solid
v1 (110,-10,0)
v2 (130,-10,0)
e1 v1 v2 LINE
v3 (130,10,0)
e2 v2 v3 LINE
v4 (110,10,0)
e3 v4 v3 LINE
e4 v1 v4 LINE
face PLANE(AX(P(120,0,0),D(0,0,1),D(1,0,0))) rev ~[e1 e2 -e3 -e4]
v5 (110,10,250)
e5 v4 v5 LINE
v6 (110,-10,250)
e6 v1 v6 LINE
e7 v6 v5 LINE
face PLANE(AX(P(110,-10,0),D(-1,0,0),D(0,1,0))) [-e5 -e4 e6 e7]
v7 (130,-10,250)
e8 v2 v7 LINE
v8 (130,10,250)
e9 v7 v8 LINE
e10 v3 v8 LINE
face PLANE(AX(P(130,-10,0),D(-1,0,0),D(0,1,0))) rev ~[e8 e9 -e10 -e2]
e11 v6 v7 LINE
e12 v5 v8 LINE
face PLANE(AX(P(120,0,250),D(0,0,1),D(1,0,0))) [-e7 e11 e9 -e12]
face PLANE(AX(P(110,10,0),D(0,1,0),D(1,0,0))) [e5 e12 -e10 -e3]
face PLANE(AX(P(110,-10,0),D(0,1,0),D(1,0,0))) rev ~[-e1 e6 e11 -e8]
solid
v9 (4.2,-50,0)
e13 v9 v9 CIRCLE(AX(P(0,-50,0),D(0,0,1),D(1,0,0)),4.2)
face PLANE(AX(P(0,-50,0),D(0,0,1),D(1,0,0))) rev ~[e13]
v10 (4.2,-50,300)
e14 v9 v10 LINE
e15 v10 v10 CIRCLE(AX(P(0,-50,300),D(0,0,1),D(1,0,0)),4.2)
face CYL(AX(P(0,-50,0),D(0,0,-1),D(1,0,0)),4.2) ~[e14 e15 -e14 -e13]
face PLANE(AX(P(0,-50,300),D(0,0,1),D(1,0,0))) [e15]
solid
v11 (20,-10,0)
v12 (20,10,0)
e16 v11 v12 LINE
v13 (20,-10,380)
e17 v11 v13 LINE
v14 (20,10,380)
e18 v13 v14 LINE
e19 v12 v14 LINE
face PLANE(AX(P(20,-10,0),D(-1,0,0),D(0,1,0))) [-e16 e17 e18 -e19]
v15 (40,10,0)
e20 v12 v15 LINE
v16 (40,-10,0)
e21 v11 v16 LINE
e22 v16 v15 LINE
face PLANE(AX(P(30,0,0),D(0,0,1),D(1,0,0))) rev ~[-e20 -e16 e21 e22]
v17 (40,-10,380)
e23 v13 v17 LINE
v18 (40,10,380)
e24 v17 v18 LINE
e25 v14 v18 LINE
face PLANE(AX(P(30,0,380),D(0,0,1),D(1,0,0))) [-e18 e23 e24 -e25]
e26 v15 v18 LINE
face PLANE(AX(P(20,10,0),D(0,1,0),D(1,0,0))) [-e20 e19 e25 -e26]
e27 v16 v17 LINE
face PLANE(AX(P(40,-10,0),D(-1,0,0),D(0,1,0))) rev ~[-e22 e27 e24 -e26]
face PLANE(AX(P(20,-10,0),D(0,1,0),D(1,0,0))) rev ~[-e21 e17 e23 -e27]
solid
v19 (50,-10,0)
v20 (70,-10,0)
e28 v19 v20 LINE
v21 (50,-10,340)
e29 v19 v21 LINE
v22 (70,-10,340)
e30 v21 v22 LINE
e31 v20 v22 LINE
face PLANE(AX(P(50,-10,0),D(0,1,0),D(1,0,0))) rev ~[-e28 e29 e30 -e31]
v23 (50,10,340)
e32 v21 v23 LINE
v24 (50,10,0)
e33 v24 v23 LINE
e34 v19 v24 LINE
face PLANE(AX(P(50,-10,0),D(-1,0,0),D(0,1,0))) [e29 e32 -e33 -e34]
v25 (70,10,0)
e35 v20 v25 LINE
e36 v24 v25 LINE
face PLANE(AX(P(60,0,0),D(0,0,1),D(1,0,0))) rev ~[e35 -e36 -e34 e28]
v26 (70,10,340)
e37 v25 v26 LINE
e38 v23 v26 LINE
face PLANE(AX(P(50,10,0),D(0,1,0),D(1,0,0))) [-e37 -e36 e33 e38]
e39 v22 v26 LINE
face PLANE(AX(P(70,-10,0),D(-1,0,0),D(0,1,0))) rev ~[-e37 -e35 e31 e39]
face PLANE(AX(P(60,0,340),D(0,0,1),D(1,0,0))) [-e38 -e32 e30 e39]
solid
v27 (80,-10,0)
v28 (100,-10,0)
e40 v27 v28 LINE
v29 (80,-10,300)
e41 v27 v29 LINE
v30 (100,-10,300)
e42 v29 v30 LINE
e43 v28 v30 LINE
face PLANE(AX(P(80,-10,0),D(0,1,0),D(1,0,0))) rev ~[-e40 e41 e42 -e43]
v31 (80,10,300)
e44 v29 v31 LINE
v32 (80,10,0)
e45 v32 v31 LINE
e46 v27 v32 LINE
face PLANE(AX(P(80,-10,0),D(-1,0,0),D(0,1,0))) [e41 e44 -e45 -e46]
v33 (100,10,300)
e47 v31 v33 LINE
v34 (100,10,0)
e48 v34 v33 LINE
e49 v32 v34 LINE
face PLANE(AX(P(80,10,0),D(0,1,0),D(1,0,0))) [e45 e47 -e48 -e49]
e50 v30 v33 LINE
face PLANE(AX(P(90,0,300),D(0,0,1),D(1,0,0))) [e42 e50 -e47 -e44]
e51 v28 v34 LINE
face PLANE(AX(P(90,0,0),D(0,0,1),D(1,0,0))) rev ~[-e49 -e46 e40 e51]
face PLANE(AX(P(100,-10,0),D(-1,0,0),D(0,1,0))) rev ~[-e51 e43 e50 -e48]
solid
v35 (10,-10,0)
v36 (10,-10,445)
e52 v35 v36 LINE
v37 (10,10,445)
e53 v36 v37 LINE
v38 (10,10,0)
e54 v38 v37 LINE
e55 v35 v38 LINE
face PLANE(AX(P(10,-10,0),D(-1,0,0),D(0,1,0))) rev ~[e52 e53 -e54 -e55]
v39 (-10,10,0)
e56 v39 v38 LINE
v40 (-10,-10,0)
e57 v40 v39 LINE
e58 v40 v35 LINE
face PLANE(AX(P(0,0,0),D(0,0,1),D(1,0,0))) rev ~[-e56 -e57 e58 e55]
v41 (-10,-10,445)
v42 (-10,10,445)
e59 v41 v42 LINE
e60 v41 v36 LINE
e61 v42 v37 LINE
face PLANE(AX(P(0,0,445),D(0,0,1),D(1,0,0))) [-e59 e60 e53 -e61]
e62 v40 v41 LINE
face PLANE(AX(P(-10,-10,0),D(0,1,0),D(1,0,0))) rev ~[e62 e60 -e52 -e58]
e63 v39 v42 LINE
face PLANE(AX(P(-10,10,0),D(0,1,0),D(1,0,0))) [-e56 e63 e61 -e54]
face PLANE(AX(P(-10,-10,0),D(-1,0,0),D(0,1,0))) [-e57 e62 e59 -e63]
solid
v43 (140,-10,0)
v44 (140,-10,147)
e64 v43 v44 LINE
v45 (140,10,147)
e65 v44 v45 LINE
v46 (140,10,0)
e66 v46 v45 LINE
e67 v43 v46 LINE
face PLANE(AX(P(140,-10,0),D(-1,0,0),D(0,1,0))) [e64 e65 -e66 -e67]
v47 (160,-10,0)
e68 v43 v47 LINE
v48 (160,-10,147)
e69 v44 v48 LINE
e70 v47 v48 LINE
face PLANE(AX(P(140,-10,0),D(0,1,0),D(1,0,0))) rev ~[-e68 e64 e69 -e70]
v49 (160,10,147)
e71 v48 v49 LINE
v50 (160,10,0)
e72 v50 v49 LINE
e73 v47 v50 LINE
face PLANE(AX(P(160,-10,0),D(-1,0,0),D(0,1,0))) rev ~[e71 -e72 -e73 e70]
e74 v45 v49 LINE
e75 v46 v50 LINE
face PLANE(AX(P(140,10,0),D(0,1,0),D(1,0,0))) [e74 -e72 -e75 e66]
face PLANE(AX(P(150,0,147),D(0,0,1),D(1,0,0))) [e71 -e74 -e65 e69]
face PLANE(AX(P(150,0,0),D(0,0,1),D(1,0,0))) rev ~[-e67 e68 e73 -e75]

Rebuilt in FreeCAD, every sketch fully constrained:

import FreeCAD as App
import Part
import Sketcher
from FreeCAD import Vector


def add_polygon(sketch, points):
    """Adds a closed chain of lines whose ends are joined by coincident constraints."""
    first, n = sketch.GeometryCount, len(points)
    for a, b in zip(points, points[1:] + points[:1]):
        sketch.addGeometry(Part.LineSegment(App.Vector(*a, 0), App.Vector(*b, 0)), False)
    for i in range(n):
        sketch.addConstraint(Sketcher.Constraint("Coincident", first + i, 2, first + (i + 1) % n, 1))

doc = App.newDocument("Part")
body = doc.addObject("PartDesign::Body", "Body")

# Sketch on XY plane
sketch1 = doc.addObject("Sketcher::SketchObject", "Sketch")
body.addObject(sketch1)
sketch1.AttachmentSupport = (doc.XY_Plane, [""])
sketch1.MapMode = "FlatFace"
add_polygon(sketch1, [(-10, 10), (-10, -10), (10, -10), (10, 10)])  # lines 0-3
sketch1.addConstraint(Sketcher.Constraint("Vertical", 0))
sketch1.addConstraint(Sketcher.Constraint("Horizontal", 1))
sketch1.addConstraint(Sketcher.Constraint("Vertical", 2))
sketch1.addConstraint(Sketcher.Constraint("Horizontal", 3))
sketch1.addConstraint(Sketcher.Constraint("Symmetric", 0, 2, 2, 2, -1, 1))
sketch1.addConstraint(Sketcher.Constraint("Equal", 3, 0))
sketch1.addConstraint(Sketcher.Constraint("DistanceX", 1, 1, 1, 2, 20.0))
pad1 = doc.addObject("PartDesign::Pad", "Pad")
body.addObject(pad1)
pad1.Profile = sketch1
pad1.Length = 445
body2 = doc.addObject("PartDesign::Body", "Body001")

# Sketch on XY plane
sketch2 = doc.addObject("Sketcher::SketchObject", "Sketch001")
body2.addObject(sketch2)
sketch2.AttachmentSupport = (doc.getObject("XY_Plane001"), [""])
sketch2.MapMode = "FlatFace"
add_polygon(sketch2, [(20, 10), (20, -10), (40, -10), (40, 10)])  # lines 0-3
sketch2.addConstraint(Sketcher.Constraint("Vertical", 0))
sketch2.addConstraint(Sketcher.Constraint("Horizontal", 1))
sketch2.addConstraint(Sketcher.Constraint("Vertical", 2))
sketch2.addConstraint(Sketcher.Constraint("Horizontal", 3))
sketch2.addConstraint(Sketcher.Constraint("Equal", 3, 0))
sketch2.addConstraint(Sketcher.Constraint("DistanceX", 1, 1, 1, 2, 20.0))
sketch2.addConstraint(Sketcher.Constraint("DistanceX", -1, 1, 0, 2, 20.0))
sketch2.addConstraint(Sketcher.Constraint("DistanceY", 0, 2, -1, 1, 10.0))
pad2 = doc.addObject("PartDesign::Pad", "Pad001")
body2.addObject(pad2)
pad2.Profile = sketch2
pad2.Length = 380
body3 = doc.addObject("PartDesign::Body", "Body002")

# Sketch on XY plane
sketch3 = doc.addObject("Sketcher::SketchObject", "Sketch002")
body3.addObject(sketch3)
sketch3.AttachmentSupport = (doc.getObject("XY_Plane002"), [""])
sketch3.MapMode = "FlatFace"
add_polygon(sketch3, [(50, 10), (50, -10), (70, -10), (70, 10)])  # lines 0-3
sketch3.addConstraint(Sketcher.Constraint("Vertical", 0))
sketch3.addConstraint(Sketcher.Constraint("Horizontal", 1))
sketch3.addConstraint(Sketcher.Constraint("Vertical", 2))
sketch3.addConstraint(Sketcher.Constraint("Horizontal", 3))
sketch3.addConstraint(Sketcher.Constraint("Equal", 3, 0))
sketch3.addConstraint(Sketcher.Constraint("DistanceX", 1, 1, 1, 2, 20.0))
sketch3.addConstraint(Sketcher.Constraint("DistanceX", -1, 1, 0, 2, 50.0))
sketch3.addConstraint(Sketcher.Constraint("DistanceY", 0, 2, -1, 1, 10.0))
pad3 = doc.addObject("PartDesign::Pad", "Pad002")
body3.addObject(pad3)
pad3.Profile = sketch3
pad3.Length = 340
body4 = doc.addObject("PartDesign::Body", "Body003")

# Sketch on XY plane
sketch4 = doc.addObject("Sketcher::SketchObject", "Sketch003")
body4.addObject(sketch4)
sketch4.AttachmentSupport = (doc.getObject("XY_Plane003"), [""])
sketch4.MapMode = "FlatFace"
add_polygon(sketch4, [(80, 10), (80, -10), (100, -10), (100, 10)])  # lines 0-3
sketch4.addConstraint(Sketcher.Constraint("Vertical", 0))
sketch4.addConstraint(Sketcher.Constraint("Horizontal", 1))
sketch4.addConstraint(Sketcher.Constraint("Vertical", 2))
sketch4.addConstraint(Sketcher.Constraint("Horizontal", 3))
sketch4.addConstraint(Sketcher.Constraint("Equal", 3, 0))
sketch4.addConstraint(Sketcher.Constraint("DistanceX", 1, 1, 1, 2, 20.0))
sketch4.addConstraint(Sketcher.Constraint("DistanceX", -1, 1, 0, 2, 80.0))
sketch4.addConstraint(Sketcher.Constraint("DistanceY", 0, 2, -1, 1, 10.0))
pad4 = doc.addObject("PartDesign::Pad", "Pad003")
body4.addObject(pad4)
pad4.Profile = sketch4
pad4.Length = 300
body5 = doc.addObject("PartDesign::Body", "Body004")

# Sketch on XY plane
sketch5 = doc.addObject("Sketcher::SketchObject", "Sketch004")
body5.addObject(sketch5)
sketch5.AttachmentSupport = (doc.getObject("XY_Plane004"), [""])
sketch5.MapMode = "FlatFace"
sketch5.addGeometry(Part.Circle(Vector(0, -50, 0), Vector(0, 0, 1), 4.2), False)
sketch5.addConstraint(Sketcher.Constraint("PointOnObject", 0, 3, -2))
sketch5.addConstraint(Sketcher.Constraint("Diameter", 0, 8.4))
sketch5.addConstraint(Sketcher.Constraint("DistanceY", 0, 3, -1, 1, 50.0))
pad5 = doc.addObject("PartDesign::Pad", "Pad004")
body5.addObject(pad5)
pad5.Profile = sketch5
pad5.Length = 300
body6 = doc.addObject("PartDesign::Body", "Body005")

# Sketch on XY plane
sketch6 = doc.addObject("Sketcher::SketchObject", "Sketch005")
body6.addObject(sketch6)
sketch6.AttachmentSupport = (doc.getObject("XY_Plane005"), [""])
sketch6.MapMode = "FlatFace"
add_polygon(sketch6, [(110, 10), (110, -10), (130, -10), (130, 10)])  # lines 0-3
sketch6.addConstraint(Sketcher.Constraint("Vertical", 0))
sketch6.addConstraint(Sketcher.Constraint("Horizontal", 1))
sketch6.addConstraint(Sketcher.Constraint("Vertical", 2))
sketch6.addConstraint(Sketcher.Constraint("Horizontal", 3))
sketch6.addConstraint(Sketcher.Constraint("Equal", 3, 0))
sketch6.addConstraint(Sketcher.Constraint("DistanceX", 1, 1, 1, 2, 20.0))
sketch6.addConstraint(Sketcher.Constraint("DistanceX", -1, 1, 0, 2, 110.0))
sketch6.addConstraint(Sketcher.Constraint("DistanceY", 0, 2, -1, 1, 10.0))
pad6 = doc.addObject("PartDesign::Pad", "Pad005")
body6.addObject(pad6)
pad6.Profile = sketch6
pad6.Length = 250
body7 = doc.addObject("PartDesign::Body", "Body006")

# Sketch on XY plane
sketch7 = doc.addObject("Sketcher::SketchObject", "Sketch006")
body7.addObject(sketch7)
sketch7.AttachmentSupport = (doc.getObject("XY_Plane006"), [""])
sketch7.MapMode = "FlatFace"
add_polygon(sketch7, [(140, 10), (140, -10), (160, -10), (160, 10)])  # lines 0-3
sketch7.addConstraint(Sketcher.Constraint("Vertical", 0))
sketch7.addConstraint(Sketcher.Constraint("Horizontal", 1))
sketch7.addConstraint(Sketcher.Constraint("Vertical", 2))
sketch7.addConstraint(Sketcher.Constraint("Horizontal", 3))
sketch7.addConstraint(Sketcher.Constraint("Equal", 3, 0))
sketch7.addConstraint(Sketcher.Constraint("DistanceX", 1, 1, 1, 2, 20.0))
sketch7.addConstraint(Sketcher.Constraint("DistanceX", -1, 1, 0, 2, 140.0))
sketch7.addConstraint(Sketcher.Constraint("DistanceY", 0, 2, -1, 1, 10.0))
pad7 = doc.addObject("PartDesign::Pad", "Pad006")
body7.addObject(pad7)
pad7.Profile = sketch7
pad7.Length = 147

doc.recompute()
